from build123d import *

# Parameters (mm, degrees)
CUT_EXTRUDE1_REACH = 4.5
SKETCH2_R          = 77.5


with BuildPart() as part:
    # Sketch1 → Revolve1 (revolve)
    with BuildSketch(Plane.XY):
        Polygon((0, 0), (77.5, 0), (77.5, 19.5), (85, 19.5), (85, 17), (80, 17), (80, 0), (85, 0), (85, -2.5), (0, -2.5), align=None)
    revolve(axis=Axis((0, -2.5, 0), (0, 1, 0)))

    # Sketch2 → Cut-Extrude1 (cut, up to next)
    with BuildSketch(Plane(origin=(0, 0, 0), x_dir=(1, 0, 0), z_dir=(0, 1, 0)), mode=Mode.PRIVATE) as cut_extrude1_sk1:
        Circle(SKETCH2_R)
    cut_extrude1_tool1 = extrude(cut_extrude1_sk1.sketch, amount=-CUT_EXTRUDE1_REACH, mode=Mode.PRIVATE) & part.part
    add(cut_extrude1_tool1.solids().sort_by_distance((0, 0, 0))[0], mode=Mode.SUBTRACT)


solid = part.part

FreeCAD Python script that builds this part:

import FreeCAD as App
import Part
import Sketcher
from FreeCAD import Vector

doc = App.newDocument("Part")
body = doc.addObject("PartDesign::Body", "Body")

# Sketch on XY plane
sketch1 = body.newObject("Sketcher::SketchObject", "Sketch")
sketch1.AttachmentSupport = (doc.getObject("XY_Plane"), [""])
sketch1.MapMode = "FlatFace"
sketch1.addGeometry([
    Part.LineSegment(Vector(77.5, 0, 0), Vector(0, 0, 0)),  # 0
    Part.LineSegment(Vector(0, 0, 0), Vector(0, -2.5, 0)),  # 1
    Part.LineSegment(Vector(0, -2.5, 0), Vector(85, -2.5, 0)),  # 2
    Part.LineSegment(Vector(85, -2.5, 0), Vector(85, 0, 0)),  # 3
    Part.LineSegment(Vector(85, 0, 0), Vector(80, 0, 0)),  # 4
    Part.LineSegment(Vector(80, 0, 0), Vector(80, 17, 0)),  # 5
    Part.LineSegment(Vector(80, 17, 0), Vector(85, 17, 0)),  # 6
    Part.LineSegment(Vector(85, 17, 0), Vector(85, 19.5, 0)),  # 7
    Part.LineSegment(Vector(85, 19.5, 0), Vector(77.5, 19.5, 0)),  # 8
    Part.LineSegment(Vector(77.5, 19.5, 0), Vector(77.5, 0, 0)),  # 9
], False)
sketch1.addConstraint([
    Sketcher.Constraint("Coincident", 0, 2, 1, 1),
    Sketcher.Constraint("Coincident", 1, 2, 2, 1),
    Sketcher.Constraint("Coincident", 2, 2, 3, 1),
    Sketcher.Constraint("Coincident", 3, 2, 4, 1),
    Sketcher.Constraint("Coincident", 4, 2, 5, 1),
    Sketcher.Constraint("Coincident", 5, 2, 6, 1),
    Sketcher.Constraint("Coincident", 6, 2, 7, 1),
    Sketcher.Constraint("Coincident", 7, 2, 8, 1),
    Sketcher.Constraint("Coincident", 8, 2, 9, 1),
    Sketcher.Constraint("Coincident", 9, 2, 0, 1),
    Sketcher.Constraint("Horizontal", 0),
    Sketcher.Constraint("Vertical", 1),
    Sketcher.Constraint("Horizontal", 2),
    Sketcher.Constraint("Vertical", 3),
    Sketcher.Constraint("Horizontal", 4),
    Sketcher.Constraint("Vertical", 5),
    Sketcher.Constraint("Horizontal", 6),
    Sketcher.Constraint("Vertical", 7),
    Sketcher.Constraint("Horizontal", 8),
    Sketcher.Constraint("Vertical", 9),
    Sketcher.Constraint("Coincident", 0, 2, -1, 1),
    Sketcher.Constraint("PointOnObject", 3, 2, -1),
    Sketcher.Constraint("Vertical", 3, 2, 6, 2),
    Sketcher.Constraint("Equal", 3, 7),
    Sketcher.Constraint("DistanceX", 2, 1, 2, 2, 85.0),
    Sketcher.Constraint("DistanceX", 4, 2, 4, 1, 5.0),
    Sketcher.Constraint("DistanceY", 5, 1, 5, 2, 17.0),
    Sketcher.Constraint("DistanceX", 0, 2, 0, 1, 77.5),
    Sketcher.Constraint("DistanceY", 1, 2, 1, 1, 2.5),
])
revolution = body.newObject("PartDesign::Revolution", "Revolution")
revolution.Profile = sketch1
revolution.ReferenceAxis = (sketch1, ["V_Axis"])
revolution.Angle = 360

# Sketch on XZ plane
sketch2 = body.newObject("Sketcher::SketchObject", "Sketch001")
sketch2.AttachmentSupport = (doc.getObject("XZ_Plane"), [""])
sketch2.MapMode = "FlatFace"
sketch2.addGeometry(Part.Circle(Vector(0, 0, 0), Vector(0, 0, 1), 78), False)
sketch2.addConstraint([
    Sketcher.Constraint("Coincident", 0, 3, -1, 1),
    Sketcher.Constraint("Diameter", 0, 155.0),
])
pocket1 = body.newObject("PartDesign::Pocket", "Pocket")
pocket1.Profile = sketch2
pocket1.Type = "UpToFirst"
pocket1.Reversed = True

doc.recompute()
